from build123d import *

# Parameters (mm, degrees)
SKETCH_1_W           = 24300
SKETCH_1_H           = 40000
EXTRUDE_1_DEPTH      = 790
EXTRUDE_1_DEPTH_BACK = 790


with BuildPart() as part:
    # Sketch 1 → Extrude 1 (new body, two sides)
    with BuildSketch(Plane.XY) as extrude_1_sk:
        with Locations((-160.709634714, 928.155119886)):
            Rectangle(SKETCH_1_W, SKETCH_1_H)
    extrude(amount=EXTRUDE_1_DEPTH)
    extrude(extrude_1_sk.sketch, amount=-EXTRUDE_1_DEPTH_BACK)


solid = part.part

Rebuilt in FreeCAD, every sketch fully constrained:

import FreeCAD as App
import Part
import Sketcher
from FreeCAD import Vector

doc = App.newDocument("Part")
body = doc.addObject("PartDesign::Body", "Body")

# Sketch on XY plane
sketch1 = doc.addObject("Sketcher::SketchObject", "Sketch")
body.addObject(sketch1)
sketch1.AttachmentSupport = (doc.XY_Plane, [""])
sketch1.MapMode = "FlatFace"
sketch1.addGeometry([
    Part.LineSegment(Vector(-12311, 20928, 0), Vector(-12311, -19072, 0)),
    Part.LineSegment(Vector(-12311, -19072, 0), Vector(11989, -19072, 0)),
    Part.LineSegment(Vector(11989, -19072, 0), Vector(11989, 20928, 0)),
    Part.LineSegment(Vector(11989, 20928, 0), Vector(-12311, 20928, 0)),
], False)
sketch1.addConstraint([
    Sketcher.Constraint("Coincident", 0, 2, 1, 1),
    Sketcher.Constraint("Coincident", 1, 2, 2, 1),
    Sketcher.Constraint("Coincident", 2, 2, 3, 1),
    Sketcher.Constraint("Coincident", 3, 2, 0, 1),
    Sketcher.Constraint("Vertical", 0),
    Sketcher.Constraint("Horizontal", 1),
    Sketcher.Constraint("Vertical", 2),
    Sketcher.Constraint("Horizontal", 3),
    Sketcher.Constraint("DistanceX", 1, 1, 1, 2, 24300.0),
    Sketcher.Constraint("DistanceY", 0, 2, 0, 1, 40000.0),
    Sketcher.Constraint("DistanceY", 0, 2, -1, 1, 19071.84488),
    Sketcher.Constraint("DistanceX", 0, 2, -1, 1, 12310.709635),
])
pad1 = doc.addObject("PartDesign::Pad", "Pad")
body.addObject(pad1)
pad1.Profile = sketch1
pad1.Type = "TwoLengths"
pad1.Length = 790
pad1.Length2 = 790

doc.recompute()
